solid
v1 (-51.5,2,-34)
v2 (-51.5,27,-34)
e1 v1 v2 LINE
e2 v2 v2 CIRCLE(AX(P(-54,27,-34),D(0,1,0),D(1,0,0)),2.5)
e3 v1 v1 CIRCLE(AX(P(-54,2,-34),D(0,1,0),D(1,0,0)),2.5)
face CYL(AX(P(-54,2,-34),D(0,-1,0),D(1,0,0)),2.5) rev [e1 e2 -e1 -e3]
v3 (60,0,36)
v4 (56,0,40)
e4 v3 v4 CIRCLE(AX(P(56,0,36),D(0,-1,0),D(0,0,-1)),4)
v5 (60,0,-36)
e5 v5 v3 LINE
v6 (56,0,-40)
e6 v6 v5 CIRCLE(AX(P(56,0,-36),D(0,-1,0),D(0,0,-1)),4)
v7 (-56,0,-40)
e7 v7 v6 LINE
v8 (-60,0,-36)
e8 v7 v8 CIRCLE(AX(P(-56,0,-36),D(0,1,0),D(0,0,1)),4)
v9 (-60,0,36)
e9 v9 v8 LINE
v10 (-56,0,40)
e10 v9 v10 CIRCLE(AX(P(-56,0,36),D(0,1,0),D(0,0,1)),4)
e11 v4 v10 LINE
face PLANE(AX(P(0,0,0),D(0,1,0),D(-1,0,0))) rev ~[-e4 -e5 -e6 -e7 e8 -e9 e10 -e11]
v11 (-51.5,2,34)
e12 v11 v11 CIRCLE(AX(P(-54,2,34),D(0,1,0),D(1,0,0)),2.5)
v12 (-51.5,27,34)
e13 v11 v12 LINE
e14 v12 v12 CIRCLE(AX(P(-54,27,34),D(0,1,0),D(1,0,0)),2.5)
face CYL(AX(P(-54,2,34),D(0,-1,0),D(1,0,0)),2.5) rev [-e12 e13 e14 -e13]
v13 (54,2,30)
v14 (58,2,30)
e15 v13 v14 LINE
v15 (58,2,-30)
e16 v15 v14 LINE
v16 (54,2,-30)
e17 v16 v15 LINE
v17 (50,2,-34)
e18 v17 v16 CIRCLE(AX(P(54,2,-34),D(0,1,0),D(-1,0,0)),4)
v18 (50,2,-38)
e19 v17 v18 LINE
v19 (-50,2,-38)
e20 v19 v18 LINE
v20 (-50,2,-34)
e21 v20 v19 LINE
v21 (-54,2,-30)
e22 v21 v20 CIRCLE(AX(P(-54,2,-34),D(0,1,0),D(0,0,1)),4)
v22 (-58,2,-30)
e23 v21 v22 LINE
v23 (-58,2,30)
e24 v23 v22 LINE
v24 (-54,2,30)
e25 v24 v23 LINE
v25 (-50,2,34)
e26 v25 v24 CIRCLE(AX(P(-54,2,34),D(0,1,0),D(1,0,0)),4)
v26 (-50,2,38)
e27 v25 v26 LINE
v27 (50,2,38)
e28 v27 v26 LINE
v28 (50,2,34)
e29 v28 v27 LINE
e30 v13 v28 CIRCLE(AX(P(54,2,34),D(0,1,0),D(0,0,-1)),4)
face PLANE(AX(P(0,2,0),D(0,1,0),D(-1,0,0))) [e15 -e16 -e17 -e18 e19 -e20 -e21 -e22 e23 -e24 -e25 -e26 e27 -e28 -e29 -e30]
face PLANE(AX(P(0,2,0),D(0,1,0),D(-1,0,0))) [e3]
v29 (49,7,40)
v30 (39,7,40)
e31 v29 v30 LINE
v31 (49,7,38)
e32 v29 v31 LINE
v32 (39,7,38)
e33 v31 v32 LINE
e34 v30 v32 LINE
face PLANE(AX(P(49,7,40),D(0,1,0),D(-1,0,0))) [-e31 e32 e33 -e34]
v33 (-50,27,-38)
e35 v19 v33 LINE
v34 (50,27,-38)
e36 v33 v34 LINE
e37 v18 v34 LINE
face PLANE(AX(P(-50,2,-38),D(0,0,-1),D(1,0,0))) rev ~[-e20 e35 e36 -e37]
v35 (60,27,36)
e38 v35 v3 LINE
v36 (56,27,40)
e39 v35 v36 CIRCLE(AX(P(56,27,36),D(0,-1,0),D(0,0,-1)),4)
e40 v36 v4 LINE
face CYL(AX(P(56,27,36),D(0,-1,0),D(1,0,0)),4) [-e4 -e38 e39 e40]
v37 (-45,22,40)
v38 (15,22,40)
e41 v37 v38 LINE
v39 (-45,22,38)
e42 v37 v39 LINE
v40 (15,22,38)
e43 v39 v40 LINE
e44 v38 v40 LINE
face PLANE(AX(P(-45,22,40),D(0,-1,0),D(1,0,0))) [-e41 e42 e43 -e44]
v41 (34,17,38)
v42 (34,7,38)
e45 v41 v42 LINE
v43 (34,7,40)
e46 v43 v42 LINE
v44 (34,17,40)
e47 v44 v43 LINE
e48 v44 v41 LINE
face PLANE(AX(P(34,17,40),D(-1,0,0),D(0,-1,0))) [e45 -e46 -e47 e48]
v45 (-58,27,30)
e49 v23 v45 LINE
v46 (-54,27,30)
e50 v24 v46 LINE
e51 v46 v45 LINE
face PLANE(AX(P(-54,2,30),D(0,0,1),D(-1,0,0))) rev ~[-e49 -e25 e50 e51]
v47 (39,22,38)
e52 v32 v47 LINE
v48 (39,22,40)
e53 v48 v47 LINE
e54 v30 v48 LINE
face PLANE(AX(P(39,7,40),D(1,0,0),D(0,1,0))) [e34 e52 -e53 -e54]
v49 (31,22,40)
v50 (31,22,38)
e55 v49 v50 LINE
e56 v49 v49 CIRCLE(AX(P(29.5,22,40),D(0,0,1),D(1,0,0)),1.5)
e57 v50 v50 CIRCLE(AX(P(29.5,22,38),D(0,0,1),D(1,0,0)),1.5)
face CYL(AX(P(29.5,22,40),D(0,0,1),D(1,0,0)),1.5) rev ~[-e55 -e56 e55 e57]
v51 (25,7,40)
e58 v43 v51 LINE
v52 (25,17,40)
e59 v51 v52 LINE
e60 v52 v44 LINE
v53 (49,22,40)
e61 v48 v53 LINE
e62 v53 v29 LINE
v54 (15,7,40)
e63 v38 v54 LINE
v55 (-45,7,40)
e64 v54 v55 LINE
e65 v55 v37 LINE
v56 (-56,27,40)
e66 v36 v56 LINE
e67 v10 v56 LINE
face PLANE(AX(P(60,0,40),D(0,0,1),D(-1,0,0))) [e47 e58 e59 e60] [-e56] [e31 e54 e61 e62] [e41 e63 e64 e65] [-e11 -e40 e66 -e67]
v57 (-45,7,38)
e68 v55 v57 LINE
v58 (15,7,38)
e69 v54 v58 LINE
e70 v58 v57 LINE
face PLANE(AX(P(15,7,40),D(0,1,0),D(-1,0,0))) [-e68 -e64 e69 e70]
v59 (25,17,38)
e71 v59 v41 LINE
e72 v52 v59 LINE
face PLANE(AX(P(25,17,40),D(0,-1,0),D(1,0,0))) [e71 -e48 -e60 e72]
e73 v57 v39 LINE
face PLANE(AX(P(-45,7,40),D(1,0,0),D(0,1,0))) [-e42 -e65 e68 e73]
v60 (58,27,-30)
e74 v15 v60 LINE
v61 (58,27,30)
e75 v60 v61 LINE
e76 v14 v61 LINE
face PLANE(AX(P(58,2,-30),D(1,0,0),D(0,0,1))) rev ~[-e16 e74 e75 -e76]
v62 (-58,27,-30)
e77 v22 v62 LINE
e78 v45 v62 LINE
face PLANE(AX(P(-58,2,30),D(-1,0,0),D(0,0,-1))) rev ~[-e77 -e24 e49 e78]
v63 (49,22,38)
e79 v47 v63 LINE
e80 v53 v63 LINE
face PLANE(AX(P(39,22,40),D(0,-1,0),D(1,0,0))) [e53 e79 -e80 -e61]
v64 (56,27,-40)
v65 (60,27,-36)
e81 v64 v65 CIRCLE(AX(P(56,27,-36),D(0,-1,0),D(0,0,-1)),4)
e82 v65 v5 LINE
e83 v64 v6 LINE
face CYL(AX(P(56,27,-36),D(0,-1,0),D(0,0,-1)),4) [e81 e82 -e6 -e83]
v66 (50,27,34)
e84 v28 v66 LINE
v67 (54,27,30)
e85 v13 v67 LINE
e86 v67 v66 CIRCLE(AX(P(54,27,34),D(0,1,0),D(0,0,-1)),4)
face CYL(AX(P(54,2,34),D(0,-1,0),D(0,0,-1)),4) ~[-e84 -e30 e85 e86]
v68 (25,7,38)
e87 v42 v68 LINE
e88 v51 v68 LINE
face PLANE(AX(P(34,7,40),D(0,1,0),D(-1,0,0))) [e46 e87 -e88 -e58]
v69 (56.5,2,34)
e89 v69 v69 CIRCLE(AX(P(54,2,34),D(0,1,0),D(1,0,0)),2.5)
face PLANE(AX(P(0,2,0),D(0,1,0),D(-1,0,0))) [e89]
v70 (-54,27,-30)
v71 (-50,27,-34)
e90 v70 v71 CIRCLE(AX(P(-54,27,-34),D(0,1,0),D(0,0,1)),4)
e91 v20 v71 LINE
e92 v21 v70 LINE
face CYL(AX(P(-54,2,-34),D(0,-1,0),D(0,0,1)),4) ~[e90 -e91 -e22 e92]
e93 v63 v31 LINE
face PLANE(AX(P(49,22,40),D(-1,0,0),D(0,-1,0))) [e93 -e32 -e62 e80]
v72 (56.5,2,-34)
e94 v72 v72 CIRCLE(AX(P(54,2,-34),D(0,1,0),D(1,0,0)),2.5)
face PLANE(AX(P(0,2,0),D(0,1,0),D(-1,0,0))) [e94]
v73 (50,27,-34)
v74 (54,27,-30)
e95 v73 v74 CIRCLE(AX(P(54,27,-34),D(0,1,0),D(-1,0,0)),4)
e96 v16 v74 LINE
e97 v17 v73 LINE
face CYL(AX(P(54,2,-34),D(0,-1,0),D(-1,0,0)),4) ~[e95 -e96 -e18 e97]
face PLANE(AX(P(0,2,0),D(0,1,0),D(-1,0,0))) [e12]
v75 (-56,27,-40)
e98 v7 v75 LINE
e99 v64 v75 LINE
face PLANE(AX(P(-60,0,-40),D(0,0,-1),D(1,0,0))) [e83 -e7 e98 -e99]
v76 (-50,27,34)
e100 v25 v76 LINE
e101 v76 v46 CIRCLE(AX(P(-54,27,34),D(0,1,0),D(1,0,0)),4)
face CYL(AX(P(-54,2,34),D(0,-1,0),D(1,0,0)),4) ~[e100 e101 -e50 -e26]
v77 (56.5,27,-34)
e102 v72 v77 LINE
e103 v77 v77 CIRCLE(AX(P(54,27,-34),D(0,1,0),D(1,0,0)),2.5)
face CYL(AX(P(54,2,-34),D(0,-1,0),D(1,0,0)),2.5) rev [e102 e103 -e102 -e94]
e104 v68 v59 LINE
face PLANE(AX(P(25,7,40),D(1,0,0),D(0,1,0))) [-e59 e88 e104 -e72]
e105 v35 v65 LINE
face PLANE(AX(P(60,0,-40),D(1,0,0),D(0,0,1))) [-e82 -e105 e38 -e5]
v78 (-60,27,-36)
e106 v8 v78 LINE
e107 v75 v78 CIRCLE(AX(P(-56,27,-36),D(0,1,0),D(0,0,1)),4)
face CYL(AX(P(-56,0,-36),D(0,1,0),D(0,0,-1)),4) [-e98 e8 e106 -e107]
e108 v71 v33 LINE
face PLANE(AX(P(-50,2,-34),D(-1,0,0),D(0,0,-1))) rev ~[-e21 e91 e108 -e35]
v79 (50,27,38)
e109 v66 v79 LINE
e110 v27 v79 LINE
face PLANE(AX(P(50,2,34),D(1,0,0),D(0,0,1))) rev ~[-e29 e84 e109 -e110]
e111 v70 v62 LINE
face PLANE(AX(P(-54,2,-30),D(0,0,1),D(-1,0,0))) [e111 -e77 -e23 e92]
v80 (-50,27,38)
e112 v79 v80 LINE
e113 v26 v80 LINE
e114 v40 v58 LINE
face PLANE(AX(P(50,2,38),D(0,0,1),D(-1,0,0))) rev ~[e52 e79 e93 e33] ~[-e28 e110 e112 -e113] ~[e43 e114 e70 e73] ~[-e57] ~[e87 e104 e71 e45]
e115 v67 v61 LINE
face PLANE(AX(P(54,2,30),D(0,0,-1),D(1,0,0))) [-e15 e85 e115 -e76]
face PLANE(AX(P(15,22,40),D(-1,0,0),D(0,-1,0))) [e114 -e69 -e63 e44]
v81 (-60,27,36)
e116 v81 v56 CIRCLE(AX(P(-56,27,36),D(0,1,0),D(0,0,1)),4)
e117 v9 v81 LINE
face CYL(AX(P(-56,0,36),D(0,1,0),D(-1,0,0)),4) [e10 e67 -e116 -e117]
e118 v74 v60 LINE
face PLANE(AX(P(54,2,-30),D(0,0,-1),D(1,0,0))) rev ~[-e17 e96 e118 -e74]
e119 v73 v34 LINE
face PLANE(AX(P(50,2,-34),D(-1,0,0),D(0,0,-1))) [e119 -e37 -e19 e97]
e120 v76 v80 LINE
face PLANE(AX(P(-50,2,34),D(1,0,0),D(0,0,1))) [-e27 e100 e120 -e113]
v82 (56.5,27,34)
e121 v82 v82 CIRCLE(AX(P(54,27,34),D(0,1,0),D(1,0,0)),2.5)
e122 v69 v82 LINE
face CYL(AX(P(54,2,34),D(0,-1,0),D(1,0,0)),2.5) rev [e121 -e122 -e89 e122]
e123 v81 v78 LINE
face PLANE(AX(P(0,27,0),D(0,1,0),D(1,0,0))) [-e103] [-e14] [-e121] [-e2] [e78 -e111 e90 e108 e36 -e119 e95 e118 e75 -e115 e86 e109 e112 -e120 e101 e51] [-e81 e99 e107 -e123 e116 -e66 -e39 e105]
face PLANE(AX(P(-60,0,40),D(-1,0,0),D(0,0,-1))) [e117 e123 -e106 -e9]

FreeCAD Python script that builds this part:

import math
import FreeCAD as App
import Part
import Sketcher
from FreeCAD import Vector
Q = App.Units.Quantity


def edges_at(feature, points):
    """Names of the edges that pass closest to the given points."""
    edges = feature.Shape.Edges
    near = lambda p: min(range(len(edges)), key=lambda i: edges[i].distToShape(Part.Vertex(*p))[0])
    return sorted({f"Edge{near(p) + 1}" for p in points})

doc = App.newDocument("Part")
body = doc.addObject("PartDesign::Body", "Body")

# Sketch on XZ plane
sketch1 = body.newObject("Sketcher::SketchObject", "Sketch")
sketch1.AttachmentSupport = (doc.getObject("XZ_Plane"), [""])
sketch1.MapMode = "FlatFace"
sketch1.addGeometry([
    Part.LineSegment(Vector(60, -40, 0), Vector(-60, -40, 0)),
    Part.LineSegment(Vector(-60, -40, 0), Vector(-60, 40, 0)),
    Part.LineSegment(Vector(-60, 40, 0), Vector(60, 40, 0)),
    Part.LineSegment(Vector(60, 40, 0), Vector(60, -40, 0)),
], False)
sketch1.addConstraint([
    Sketcher.Constraint("Coincident", 0, 2, 1, 1),
    Sketcher.Constraint("Coincident", 1, 2, 2, 1),
    Sketcher.Constraint("Coincident", 2, 2, 3, 1),
    Sketcher.Constraint("Coincident", 3, 2, 0, 1),
    Sketcher.Constraint("Horizontal", 0),
    Sketcher.Constraint("Vertical", 1),
    Sketcher.Constraint("Horizontal", 2),
    Sketcher.Constraint("Vertical", 3),
    Sketcher.Constraint("Symmetric", 0, 2, 2, 2, -1, 1),
    Sketcher.Constraint("DistanceX", 0, 2, 0, 1, Q("120 mm")),
    Sketcher.Constraint("DistanceY", 1, 1, 1, 2, Q("80 mm")),
])
pad1 = body.newObject("PartDesign::Pad", "Pad")
pad1.Profile = sketch1
pad1.Length = 2
pad1.Reversed = True

# Sketch on XZ plane
sketch2 = body.newObject("Sketcher::SketchObject", "Sketch001")
sketch2.AttachmentSupport = (doc.getObject("XZ_Plane"), [""])
sketch2.MapMode = "FlatFace"
sketch2.AttachmentOffset = App.Placement(Vector(0, 0, -2), App.Rotation())
sketch2.addGeometry([
    Part.LineSegment(Vector(60, 40, 0), Vector(60, -40, 0)),  # 0
    Part.LineSegment(Vector(60, -40, 0), Vector(-60, -40, 0)),  # 1
    Part.LineSegment(Vector(-60, -40, 0), Vector(-60, 40, 0)),  # 2
    Part.LineSegment(Vector(-60, 40, 0), Vector(60, 40, 0)),  # 3
    Part.LineSegment(Vector(-58, 30, 0), Vector(-58, -30, 0)),  # 4
    Part.LineSegment(Vector(-58, -30, 0), Vector(-54, -30, 0)),  # 5
    Part.ArcOfCircle(Part.Circle(Vector(-54, -34, 0), Vector(0, 0, 1), 4), math.radians(0), math.radians(90)),  # 6
    Part.LineSegment(Vector(-50, -34, 0), Vector(-50, -38, 0)),  # 7
    Part.LineSegment(Vector(-50, -38, 0), Vector(50, -38, 0)),  # 8
    Part.LineSegment(Vector(50, -38, 0), Vector(50, -34, 0)),  # 9
    Part.ArcOfCircle(Part.Circle(Vector(54, -34, 0), Vector(0, 0, 1), 4), math.radians(90), math.radians(180)),  # 10
    Part.LineSegment(Vector(54, -30, 0), Vector(58, -30, 0)),  # 11
    Part.LineSegment(Vector(58, -30, 0), Vector(58, 30, 0)),  # 12
    Part.LineSegment(Vector(58, 30, 0), Vector(54, 30, 0)),  # 13
    Part.ArcOfCircle(Part.Circle(Vector(54, 34, 0), Vector(0, 0, 1), 4), math.radians(180), math.radians(270)),  # 14
    Part.LineSegment(Vector(50, 34, 0), Vector(50, 38, 0)),  # 15
    Part.LineSegment(Vector(50, 38, 0), Vector(-50, 38, 0)),  # 16
    Part.LineSegment(Vector(-50, 38, 0), Vector(-50, 34, 0)),  # 17
    Part.ArcOfCircle(Part.Circle(Vector(-54, 34, 0), Vector(0, 0, 1), 4), math.radians(-90), math.radians(0)),  # 18
    Part.LineSegment(Vector(-54, 30, 0), Vector(-58, 30, 0)),  # 19
    Part.Circle(Vector(-54, -34, 0), Vector(0, 0, 1), 2.5),  # 20
    Part.Circle(Vector(-54, 34, 0), Vector(0, 0, 1), 2.5),  # 21
    Part.Circle(Vector(54, 34, 0), Vector(0, 0, 1), 2.5),  # 22
    Part.Circle(Vector(54, -34, 0), Vector(0, 0, 1), 2.5),  # 23
], False)
sketch2.addConstraint([
    Sketcher.Constraint("Coincident", 0, 2, 1, 1),
    Sketcher.Constraint("Coincident", 1, 2, 2, 1),
    Sketcher.Constraint("Coincident", 2, 2, 3, 1),
    Sketcher.Constraint("Coincident", 3, 2, 0, 1),
    Sketcher.Constraint("Coincident", 4, 2, 5, 1),
    Sketcher.Constraint("Tangent", 5, 2, 6, 2),
    Sketcher.Constraint("Tangent", 6, 1, 7, 1),
    Sketcher.Constraint("Coincident", 7, 2, 8, 1),
    Sketcher.Constraint("Coincident", 8, 2, 9, 1),
    Sketcher.Constraint("Tangent", 9, 2, 10, 2),
    Sketcher.Constraint("Tangent", 10, 1, 11, 1),
    Sketcher.Constraint("Coincident", 11, 2, 12, 1),
    Sketcher.Constraint("Coincident", 12, 2, 13, 1),
    Sketcher.Constraint("Tangent", 13, 2, 14, 2),
    Sketcher.Constraint("Tangent", 14, 1, 15, 1),
    Sketcher.Constraint("Coincident", 15, 2, 16, 1),
    Sketcher.Constraint("Coincident", 16, 2, 17, 1),
    Sketcher.Constraint("Tangent", 17, 2, 18, 2),
    Sketcher.Constraint("Tangent", 18, 1, 19, 1),
    Sketcher.Constraint("Coincident", 19, 2, 4, 1),
    Sketcher.Constraint("Vertical", 0),
    Sketcher.Constraint("Horizontal", 1),
    Sketcher.Constraint("Vertical", 2),
    Sketcher.Constraint("Horizontal", 3),
    Sketcher.Constraint("Vertical", 4),
    Sketcher.Constraint("Horizontal", 5),
    Sketcher.Constraint("Vertical", 7),
    Sketcher.Constraint("Horizontal", 8),
    Sketcher.Constraint("Vertical", 9),
    Sketcher.Constraint("Horizontal", 11),
    Sketcher.Constraint("Vertical", 12),
    Sketcher.Constraint("Horizontal", 13),
    Sketcher.Constraint("Vertical", 15),
    Sketcher.Constraint("Horizontal", 16),
    Sketcher.Constraint("Vertical", 17),
    Sketcher.Constraint("Horizontal", 19),
    Sketcher.Constraint("Coincident", 20, 3, 6, 3),
    Sketcher.Constraint("Coincident", 21, 3, 18, 3),
    Sketcher.Constraint("Coincident", 22, 3, 14, 3),
    Sketcher.Constraint("Coincident", 23, 3, 10, 3),
    Sketcher.Constraint("Equal", 6, 10),
    Sketcher.Constraint("Equal", 10, 14),
    Sketcher.Constraint("Equal", 14, 18),
    Sketcher.Constraint("Equal", 20, 21),
    Sketcher.Constraint("Equal", 21, 22),
    Sketcher.Constraint("Equal", 22, 23),
    Sketcher.Constraint("Symmetric", 6, 3, 14, 3, -1, 1),
    Sketcher.Constraint("Symmetric", 10, 3, 18, 3, -1, 1),
    Sketcher.Constraint("Symmetric", 0, 2, 2, 2, -1, 1),
    Sketcher.Constraint("Symmetric", 6, 3, 10, 3, -2),
    Sketcher.Constraint("Equal", 5, 11),
    Sketcher.Constraint("Equal", 19, 7),
    Sketcher.Constraint("Equal", 9, 15),
    Sketcher.Constraint("Diameter", 20, Q("5 mm")),
    Sketcher.Constraint("Radius", 6, Q("4 mm")),
    Sketcher.Constraint("DistanceX", 5, 1, 5, 2, Q("4 mm")),
    Sketcher.Constraint("DistanceX", 6, 3, 10, 3, Q("108 mm")),
    Sketcher.Constraint("DistanceY", 10, 3, 14, 3, Q("68 mm")),
    Sketcher.Constraint("DistanceX", 1, 2, 4, 2, Q("2 mm")),
    Sketcher.Constraint("DistanceY", 1, 2, 7, 2, Q("2 mm")),
])
pad2 = body.newObject("PartDesign::Pad", "Pad001")
pad2.Profile = sketch2
pad2.Length = 25
pad2.Reversed = True

# Sketch on XY plane
sketch3 = body.newObject("Sketcher::SketchObject", "Sketch002")
sketch3.AttachmentSupport = (doc.getObject("XY_Plane"), [""])
sketch3.MapMode = "FlatFace"
sketch3.AttachmentOffset = App.Placement(Vector(0, 0, 40), App.Rotation())
sketch3.addGeometry([
    Part.LineSegment(Vector(15, 22, 0), Vector(-45, 22, 0)),  # 0
    Part.LineSegment(Vector(-45, 22, 0), Vector(-45, 7, 0)),  # 1
    Part.LineSegment(Vector(-45, 7, 0), Vector(15, 7, 0)),  # 2
    Part.LineSegment(Vector(15, 7, 0), Vector(15, 22, 0)),  # 3
    Part.LineSegment(Vector(34, 17, 0), Vector(25, 17, 0)),  # 4
    Part.LineSegment(Vector(25, 17, 0), Vector(25, 7, 0)),  # 5
    Part.LineSegment(Vector(25, 7, 0), Vector(34, 7, 0)),  # 6
    Part.LineSegment(Vector(34, 7, 0), Vector(34, 17, 0)),  # 7
    Part.LineSegment(Vector(49, 22, 0), Vector(39, 22, 0)),  # 8
    Part.LineSegment(Vector(39, 22, 0), Vector(39, 7, 0)),  # 9
    Part.LineSegment(Vector(39, 7, 0), Vector(49, 7, 0)),  # 10
    Part.LineSegment(Vector(49, 7, 0), Vector(49, 22, 0)),  # 11
    Part.Circle(Vector(29.5, 22, 0), Vector(0, 0, 1), 1.5),  # 12
], False)
sketch3.addConstraint([
    Sketcher.Constraint("Coincident", 0, 2, 1, 1),
    Sketcher.Constraint("Coincident", 1, 2, 2, 1),
    Sketcher.Constraint("Coincident", 2, 2, 3, 1),
    Sketcher.Constraint("Coincident", 3, 2, 0, 1),
    Sketcher.Constraint("Coincident", 4, 2, 5, 1),
    Sketcher.Constraint("Coincident", 5, 2, 6, 1),
    Sketcher.Constraint("Coincident", 6, 2, 7, 1),
    Sketcher.Constraint("Coincident", 7, 2, 4, 1),
    Sketcher.Constraint("Coincident", 8, 2, 9, 1),
    Sketcher.Constraint("Coincident", 9, 2, 10, 1),
    Sketcher.Constraint("Coincident", 10, 2, 11, 1),
    Sketcher.Constraint("Coincident", 11, 2, 8, 1),
    Sketcher.Constraint("Horizontal", 0),
    Sketcher.Constraint("Vertical", 1),
    Sketcher.Constraint("Horizontal", 2),
    Sketcher.Constraint("Vertical", 3),
    Sketcher.Constraint("Horizontal", 4),
    Sketcher.Constraint("Vertical", 5),
    Sketcher.Constraint("Horizontal", 6),
    Sketcher.Constraint("Vertical", 7),
    Sketcher.Constraint("Horizontal", 8),
    Sketcher.Constraint("Vertical", 9),
    Sketcher.Constraint("Horizontal", 10),
    Sketcher.Constraint("Vertical", 11),
    Sketcher.Constraint("Horizontal", 12, 3, 0, 2),
    Sketcher.Constraint("Horizontal", 2, 2, 5, 2),
    Sketcher.Constraint("Horizontal", 3, 2, 8, 2),
    Sketcher.Constraint("Horizontal", 6, 2, 9, 2),
    Sketcher.Constraint("Equal", 10, 5),
    Sketcher.Constraint("Diameter", 12, Q("3 mm")),
    Sketcher.Constraint("DistanceX", 0, 2, 0, 1, Q("60 mm")),
    Sketcher.Constraint("DistanceX", 4, 2, 4, 1, Q("9 mm")),
    Sketcher.Constraint("DistanceX", 8, 2, 8, 1, Q("10 mm")),
    Sketcher.Constraint("DistanceY", 1, 2, 1, 1, Q("15 mm")),
    Sketcher.Constraint("DistanceX", -1, 1, 2, 2, Q("15 mm")),
    Sketcher.Constraint("DistanceX", 3, 2, 4, 2, Q("10 mm")),
    Sketcher.Constraint("DistanceX", 7, 2, 8, 2, Q("5 mm")),
    Sketcher.Constraint("DistanceX", 4, 2, 12, 3, Q("4.5 mm")),
    Sketcher.Constraint("DistanceY", -1, 1, 12, 3, Q("22 mm")),
])
pocket1 = body.newObject("PartDesign::Pocket", "Pocket")
pocket1.Profile = sketch3
pocket1.Length = 25
doc.recompute()

fillet = body.newObject("PartDesign::Fillet", "Fillet")
fillet.Base = (pocket1, edges_at(pocket1, [
    (-60, 13.5, 40),
    (60, 13.5, 40),
    (60, 13.5, -40),
    (-60, 13.5, -40),
]))
fillet.Radius = 4

doc.recompute()
